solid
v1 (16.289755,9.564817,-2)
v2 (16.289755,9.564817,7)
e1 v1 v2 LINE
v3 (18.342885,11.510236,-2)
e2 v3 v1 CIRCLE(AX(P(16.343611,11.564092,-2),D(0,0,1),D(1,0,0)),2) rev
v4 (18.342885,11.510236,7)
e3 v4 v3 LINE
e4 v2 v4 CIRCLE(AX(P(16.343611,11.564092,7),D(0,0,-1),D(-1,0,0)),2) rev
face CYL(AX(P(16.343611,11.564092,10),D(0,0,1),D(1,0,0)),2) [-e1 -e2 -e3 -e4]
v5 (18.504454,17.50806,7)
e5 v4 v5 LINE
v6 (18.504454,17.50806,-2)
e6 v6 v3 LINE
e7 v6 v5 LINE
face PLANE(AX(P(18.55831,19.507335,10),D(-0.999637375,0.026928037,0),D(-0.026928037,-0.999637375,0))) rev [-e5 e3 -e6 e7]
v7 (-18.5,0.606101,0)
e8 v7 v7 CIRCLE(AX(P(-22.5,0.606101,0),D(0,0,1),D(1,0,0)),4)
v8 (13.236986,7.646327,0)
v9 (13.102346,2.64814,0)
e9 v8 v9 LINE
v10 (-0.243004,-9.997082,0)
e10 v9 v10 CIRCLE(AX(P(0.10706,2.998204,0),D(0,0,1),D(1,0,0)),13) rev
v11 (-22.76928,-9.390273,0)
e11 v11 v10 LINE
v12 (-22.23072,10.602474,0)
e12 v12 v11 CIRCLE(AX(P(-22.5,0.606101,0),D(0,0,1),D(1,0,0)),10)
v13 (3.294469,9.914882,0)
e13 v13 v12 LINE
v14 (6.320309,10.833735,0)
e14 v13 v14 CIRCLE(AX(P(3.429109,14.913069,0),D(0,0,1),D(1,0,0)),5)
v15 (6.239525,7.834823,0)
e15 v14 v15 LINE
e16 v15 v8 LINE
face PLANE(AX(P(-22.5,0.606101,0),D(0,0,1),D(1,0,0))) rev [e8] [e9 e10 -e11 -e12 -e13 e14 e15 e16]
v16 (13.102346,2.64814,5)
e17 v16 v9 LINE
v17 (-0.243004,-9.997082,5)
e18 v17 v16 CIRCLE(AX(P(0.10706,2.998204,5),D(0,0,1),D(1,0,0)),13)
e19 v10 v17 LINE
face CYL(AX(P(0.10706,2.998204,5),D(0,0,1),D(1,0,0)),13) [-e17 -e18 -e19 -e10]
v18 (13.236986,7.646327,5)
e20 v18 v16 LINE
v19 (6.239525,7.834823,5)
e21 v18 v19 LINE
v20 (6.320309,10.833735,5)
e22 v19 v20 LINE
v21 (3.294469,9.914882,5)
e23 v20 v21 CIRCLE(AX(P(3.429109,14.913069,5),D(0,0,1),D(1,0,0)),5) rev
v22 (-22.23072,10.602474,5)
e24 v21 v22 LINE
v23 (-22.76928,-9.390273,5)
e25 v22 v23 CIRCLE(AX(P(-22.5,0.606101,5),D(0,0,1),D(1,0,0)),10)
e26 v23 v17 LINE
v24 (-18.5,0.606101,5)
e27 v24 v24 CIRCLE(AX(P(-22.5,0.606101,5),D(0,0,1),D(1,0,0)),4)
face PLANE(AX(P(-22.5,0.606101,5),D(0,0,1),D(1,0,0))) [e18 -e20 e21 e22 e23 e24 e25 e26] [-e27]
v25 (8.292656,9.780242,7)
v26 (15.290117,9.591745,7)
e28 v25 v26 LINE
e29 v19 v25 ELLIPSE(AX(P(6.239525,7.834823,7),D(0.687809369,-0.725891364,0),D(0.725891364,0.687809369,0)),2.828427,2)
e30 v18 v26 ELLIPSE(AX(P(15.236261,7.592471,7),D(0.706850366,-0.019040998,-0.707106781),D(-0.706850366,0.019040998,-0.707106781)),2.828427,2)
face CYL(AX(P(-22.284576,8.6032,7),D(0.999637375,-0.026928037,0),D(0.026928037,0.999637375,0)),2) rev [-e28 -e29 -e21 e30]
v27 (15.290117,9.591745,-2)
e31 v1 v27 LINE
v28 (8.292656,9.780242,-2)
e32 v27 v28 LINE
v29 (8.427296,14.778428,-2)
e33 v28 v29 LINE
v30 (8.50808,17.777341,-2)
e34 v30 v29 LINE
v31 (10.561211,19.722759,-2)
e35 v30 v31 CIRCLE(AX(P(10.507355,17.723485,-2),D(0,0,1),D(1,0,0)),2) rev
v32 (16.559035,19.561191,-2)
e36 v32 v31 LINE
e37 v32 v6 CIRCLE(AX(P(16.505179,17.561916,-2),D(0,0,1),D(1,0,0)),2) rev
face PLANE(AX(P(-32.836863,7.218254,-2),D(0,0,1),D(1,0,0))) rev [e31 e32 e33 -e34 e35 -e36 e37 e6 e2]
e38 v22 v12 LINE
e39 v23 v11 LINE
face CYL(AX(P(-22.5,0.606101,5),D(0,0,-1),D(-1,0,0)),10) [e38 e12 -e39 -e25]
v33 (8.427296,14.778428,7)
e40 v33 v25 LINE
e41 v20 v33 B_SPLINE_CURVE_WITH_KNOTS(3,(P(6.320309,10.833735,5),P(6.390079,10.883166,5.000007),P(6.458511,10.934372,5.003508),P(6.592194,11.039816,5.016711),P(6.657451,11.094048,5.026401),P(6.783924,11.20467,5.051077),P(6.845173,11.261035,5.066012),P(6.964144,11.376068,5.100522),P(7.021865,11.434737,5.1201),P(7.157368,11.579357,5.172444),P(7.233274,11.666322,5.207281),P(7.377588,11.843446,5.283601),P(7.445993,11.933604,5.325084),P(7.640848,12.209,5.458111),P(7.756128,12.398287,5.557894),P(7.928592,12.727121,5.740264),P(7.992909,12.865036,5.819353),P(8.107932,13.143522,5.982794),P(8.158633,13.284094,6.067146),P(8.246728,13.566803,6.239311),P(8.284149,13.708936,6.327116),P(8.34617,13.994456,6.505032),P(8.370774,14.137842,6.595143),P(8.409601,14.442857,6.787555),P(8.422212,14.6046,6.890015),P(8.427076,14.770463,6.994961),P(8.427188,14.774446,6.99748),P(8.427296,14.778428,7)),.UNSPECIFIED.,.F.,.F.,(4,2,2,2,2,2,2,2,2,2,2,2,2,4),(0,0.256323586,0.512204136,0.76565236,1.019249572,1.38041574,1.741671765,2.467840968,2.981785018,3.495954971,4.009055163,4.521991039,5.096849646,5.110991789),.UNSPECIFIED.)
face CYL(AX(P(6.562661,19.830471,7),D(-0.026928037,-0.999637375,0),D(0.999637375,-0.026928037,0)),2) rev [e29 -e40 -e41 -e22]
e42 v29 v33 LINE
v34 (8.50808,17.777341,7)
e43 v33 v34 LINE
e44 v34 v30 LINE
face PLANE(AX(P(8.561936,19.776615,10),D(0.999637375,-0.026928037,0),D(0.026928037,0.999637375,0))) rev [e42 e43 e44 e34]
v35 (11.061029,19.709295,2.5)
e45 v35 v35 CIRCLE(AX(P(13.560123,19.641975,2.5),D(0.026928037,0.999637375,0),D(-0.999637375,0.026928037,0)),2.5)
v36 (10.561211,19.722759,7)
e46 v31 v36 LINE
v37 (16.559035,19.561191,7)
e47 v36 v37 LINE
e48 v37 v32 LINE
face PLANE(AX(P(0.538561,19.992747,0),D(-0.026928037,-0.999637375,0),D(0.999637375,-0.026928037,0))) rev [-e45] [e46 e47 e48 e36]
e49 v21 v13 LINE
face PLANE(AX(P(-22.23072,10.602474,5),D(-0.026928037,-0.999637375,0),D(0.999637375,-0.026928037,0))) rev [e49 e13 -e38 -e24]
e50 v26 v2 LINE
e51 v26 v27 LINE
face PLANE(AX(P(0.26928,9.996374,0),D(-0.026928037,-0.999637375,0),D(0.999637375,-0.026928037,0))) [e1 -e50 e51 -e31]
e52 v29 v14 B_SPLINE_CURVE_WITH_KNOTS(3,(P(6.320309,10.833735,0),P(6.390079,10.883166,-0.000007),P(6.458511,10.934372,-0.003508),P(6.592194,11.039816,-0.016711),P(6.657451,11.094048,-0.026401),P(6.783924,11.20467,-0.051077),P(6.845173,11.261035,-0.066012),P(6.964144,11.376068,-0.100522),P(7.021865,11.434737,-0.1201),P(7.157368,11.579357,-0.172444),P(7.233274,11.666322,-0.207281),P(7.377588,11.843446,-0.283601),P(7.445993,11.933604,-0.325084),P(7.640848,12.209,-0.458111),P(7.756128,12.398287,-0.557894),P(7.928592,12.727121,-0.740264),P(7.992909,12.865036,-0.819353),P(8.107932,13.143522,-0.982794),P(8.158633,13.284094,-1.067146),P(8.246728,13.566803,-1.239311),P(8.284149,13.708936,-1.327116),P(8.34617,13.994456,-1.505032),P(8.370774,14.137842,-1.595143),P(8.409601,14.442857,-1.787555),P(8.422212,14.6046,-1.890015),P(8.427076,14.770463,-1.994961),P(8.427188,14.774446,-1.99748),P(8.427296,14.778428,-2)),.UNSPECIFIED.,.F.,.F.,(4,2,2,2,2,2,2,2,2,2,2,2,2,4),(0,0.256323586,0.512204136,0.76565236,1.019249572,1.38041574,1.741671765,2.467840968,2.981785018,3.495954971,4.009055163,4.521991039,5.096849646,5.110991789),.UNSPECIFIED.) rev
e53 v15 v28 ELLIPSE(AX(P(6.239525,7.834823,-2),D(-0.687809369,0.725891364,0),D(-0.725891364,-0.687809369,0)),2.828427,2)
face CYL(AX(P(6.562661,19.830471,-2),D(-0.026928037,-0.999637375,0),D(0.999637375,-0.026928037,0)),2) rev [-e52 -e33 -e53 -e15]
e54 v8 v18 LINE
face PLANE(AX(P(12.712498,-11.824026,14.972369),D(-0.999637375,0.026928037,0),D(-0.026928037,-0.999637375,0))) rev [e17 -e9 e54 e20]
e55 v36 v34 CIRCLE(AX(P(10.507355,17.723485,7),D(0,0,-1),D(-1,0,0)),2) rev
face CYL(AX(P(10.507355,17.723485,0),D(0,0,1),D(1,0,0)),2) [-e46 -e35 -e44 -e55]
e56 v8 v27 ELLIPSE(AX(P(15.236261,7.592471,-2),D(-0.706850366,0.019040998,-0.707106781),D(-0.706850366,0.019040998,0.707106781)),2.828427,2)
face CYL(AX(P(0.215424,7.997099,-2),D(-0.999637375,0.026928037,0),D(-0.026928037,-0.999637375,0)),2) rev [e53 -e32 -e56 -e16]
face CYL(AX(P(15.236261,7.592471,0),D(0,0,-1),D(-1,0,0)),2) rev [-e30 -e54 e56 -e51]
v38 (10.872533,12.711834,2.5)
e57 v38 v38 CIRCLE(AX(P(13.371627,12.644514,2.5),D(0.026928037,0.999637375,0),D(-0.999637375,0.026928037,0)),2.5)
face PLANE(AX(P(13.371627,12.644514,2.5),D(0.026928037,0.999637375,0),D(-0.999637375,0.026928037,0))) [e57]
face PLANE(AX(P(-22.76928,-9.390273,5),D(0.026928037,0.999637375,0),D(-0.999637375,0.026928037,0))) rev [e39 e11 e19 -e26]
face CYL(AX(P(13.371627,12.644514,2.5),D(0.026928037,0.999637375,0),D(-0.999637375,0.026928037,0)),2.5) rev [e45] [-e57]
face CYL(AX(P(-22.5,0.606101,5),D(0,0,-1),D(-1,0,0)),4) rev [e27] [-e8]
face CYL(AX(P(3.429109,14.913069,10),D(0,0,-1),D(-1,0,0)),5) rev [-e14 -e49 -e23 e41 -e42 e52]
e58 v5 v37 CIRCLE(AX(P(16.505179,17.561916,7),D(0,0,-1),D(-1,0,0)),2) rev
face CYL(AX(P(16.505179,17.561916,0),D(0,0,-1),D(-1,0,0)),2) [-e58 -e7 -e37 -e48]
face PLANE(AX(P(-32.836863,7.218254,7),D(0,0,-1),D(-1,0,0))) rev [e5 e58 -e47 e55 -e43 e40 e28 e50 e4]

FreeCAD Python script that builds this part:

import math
import FreeCAD as App
import Part
import Sketcher
from FreeCAD import Vector


def edges_at(feature, points):
    """Names of the edges that pass closest to the given points."""
    edges = feature.Shape.Edges
    near = lambda p: min(range(len(edges)), key=lambda i: edges[i].distToShape(Part.Vertex(*p))[0])
    return sorted({f"Edge{near(p) + 1}" for p in points})


def add_polygon(sketch, points):
    """Adds a closed chain of lines whose ends are joined by coincident constraints."""
    first, n = sketch.GeometryCount, len(points)
    for a, b in zip(points, points[1:] + points[:1]):
        sketch.addGeometry(Part.LineSegment(App.Vector(*a, 0), App.Vector(*b, 0)), False)
    for i in range(n):
        sketch.addConstraint(Sketcher.Constraint("Coincident", first + i, 2, first + (i + 1) % n, 1))

doc = App.newDocument("Part")
body = doc.addObject("PartDesign::Body", "Body")

# Sketch on XY plane
sketch1 = body.newObject("Sketcher::SketchObject", "Sketch")
sketch1.AttachmentSupport = (doc.getObject("XY_Plane"), [""])
sketch1.MapMode = "FlatFace"
sketch1.addGeometry([
    Part.LineSegment(Vector(22.8, 9.4, 0), Vector(-22.2, 10.6, 0)),  # 0
    Part.ArcOfCircle(Part.Circle(Vector(-22.5, 0.6, 0), Vector(0, 0, 1), 10), math.radians(88), math.radians(268)),  # 1
    Part.LineSegment(Vector(-22.8, -9.4, 0), Vector(22.2, -10.6, 0)),  # 2
    Part.ArcOfCircle(Part.Circle(Vector(22.5, -0.6, 0), Vector(0, 0, 1), 10), math.radians(-92), math.radians(88)),  # 3
    Part.Circle(Vector(22.5, -0.6, 0), Vector(0, 0, 1), 4),  # 4
    Part.Circle(Vector(-22.5, 0.6, 0), Vector(0, 0, 1), 4),  # 5
], False)
sketch1.addConstraint([
    Sketcher.Constraint("Tangent", 0, 2, 1, 1),
    Sketcher.Constraint("Tangent", 1, 2, 2, 1),
    Sketcher.Constraint("Tangent", 2, 2, 3, 1),
    Sketcher.Constraint("Tangent", 3, 2, 0, 1),
    Sketcher.Constraint("Coincident", 4, 3, 3, 3),
    Sketcher.Constraint("Coincident", 5, 3, 1, 3),
    Sketcher.Constraint("Equal", 1, 3),
    Sketcher.Constraint("Equal", 4, 5),
    Sketcher.Constraint("Symmetric", 1, 3, 3, 3, -1, 1),
    Sketcher.Constraint("Diameter", 4, 8.0),
    Sketcher.Constraint("Radius", 1, 10.0),
    Sketcher.Constraint("DistanceX", 1, 3, 3, 3, 45.0),
    Sketcher.Constraint("DistanceY", -1, 1, 1, 3, 0.606101),
])
pad1 = body.newObject("PartDesign::Pad", "Pad")
pad1.Profile = sketch1
pad1.Length = 5

# Sketch on an angled plane
sketch2 = body.newObject("Sketcher::SketchObject", "Sketch001")
sketch2.Placement = App.Placement(Vector(0.26928, 9.996374, 0), App.Rotation(Vector(0.999637375, -0.026928037, 0), Vector(0, 0, -1.000000001), Vector(0.026928037, 0.999637375, 0), "ZXY"))
add_polygon(sketch2, [(13, 16), (13, -15), (43, -15), (43, 16)])  # lines 0-3
sketch2.addConstraint([
    Sketcher.Constraint("Vertical", 0),
    Sketcher.Constraint("Horizontal", 1),
    Sketcher.Constraint("Vertical", 2),
    Sketcher.Constraint("Horizontal", 3),
    Sketcher.Constraint("DistanceX", 1, 1, 1, 2, 29.745772),
    Sketcher.Constraint("DistanceY", 0, 2, 0, 1, 31.069071),
    Sketcher.Constraint("DistanceY", 0, 2, -1, 1, 14.972369),
    Sketcher.Constraint("DistanceX", -1, 1, 0, 2, 13.026286),
])
pocket1 = body.newObject("PartDesign::Pocket", "Pocket")
pocket1.Profile = sketch2
pocket1.Type = "ThroughAll"

# Sketch on an angled plane
sketch3 = body.newObject("Sketcher::SketchObject", "Sketch002")
sketch3.Placement = App.Placement(Vector(0.26928, 9.996374, 0), App.Rotation(Vector(0.999637375, -0.026928037, 0), Vector(0, 0, -1.000000001), Vector(0.026928037, 0.999637375, 0), "ZXY"))
add_polygon(sketch3, [(8, 5), (8, -10), (18, -10), (18, 5)])  # lines 0-3
sketch3.addConstraint([
    Sketcher.Constraint("Vertical", 0),
    Sketcher.Constraint("Horizontal", 1),
    Sketcher.Constraint("Vertical", 2),
    Sketcher.Constraint("Horizontal", 3),
    Sketcher.Constraint("DistanceX", 1, 1, 1, 2, 10.0),
    Sketcher.Constraint("DistanceY", 0, 2, 0, 1, 15.0),
    Sketcher.Constraint("DistanceY", 0, 2, -1, 1, 10.0),
    Sketcher.Constraint("DistanceX", -1, 1, 0, 2, 8.026286),
])
pad2 = body.newObject("PartDesign::Pad", "Pad001")
pad2.Profile = sketch3
pad2.Length = 10
doc.recompute()

fillet = body.newObject("PartDesign::Fillet", "Fillet")
fillet.Base = (pad2, edges_at(pad2, [(12.752, -10.347, 2.5)]))
fillet.Radius = 13
doc.recompute()

fillet2 = body.newObject("PartDesign::Fillet", "Fillet001")
fillet2.Base = (fillet, edges_at(fillet, [(8.293, 9.78, 2.5)]))
fillet2.Radius = 5
doc.recompute()

fillet3 = body.newObject("PartDesign::Fillet", "Fillet002")
fillet3.Base = (fillet2, edges_at(fillet2, [
    (10.792, 9.713, 0),
    (10.792, 9.713, 5),
    (13.291, 9.646, 2.5),
    (8.36, 12.279, 0),
    (8.36, 12.279, 5),
]))
fillet3.Radius = 2
doc.recompute()

fillet4 = body.newObject("PartDesign::Fillet", "Fillet003")
fillet4.Base = (fillet3, edges_at(fillet3, [
    (8.427, 14.778, -5),
    (8.427, 14.778, 10),
    (18.289, 9.511, 2.5),
    (18.424, 14.509, 10),
    (18.424, 14.509, -5),
    (8.562, 19.777, 2.5),
    (13.56, 19.642, 10),
    (18.558, 19.507, 2.5),
    (13.56, 19.642, -5),
]))
fillet4.Radius = 2

# Sketch on an angled plane
sketch4 = body.newObject("Sketcher::SketchObject", "Sketch003")
sketch4.Placement = App.Placement(Vector(0.538561, 19.992747, 0), App.Rotation(Vector(0.999637375, -0.026928037, 0), Vector(0, 0, -1.000000001), Vector(0.026928037, 0.999637375, 0), "ZXY"))
sketch4.addGeometry(Part.Circle(Vector(13, -2.5, 0), Vector(0, 0, 1), 2.5), False)
sketch4.addConstraint([
    Sketcher.Constraint("Diameter", 0, 5.0),
    Sketcher.Constraint("DistanceY", 0, 3, -1, 1, 2.5),
    Sketcher.Constraint("DistanceX", -1, 1, 0, 3, 13.026286),
])
pocket2 = body.newObject("PartDesign::Pocket", "Pocket001")
pocket2.Profile = sketch4
pocket2.Length = 7

# Sketch on an angled plane
sketch5 = body.newObject("Sketcher::SketchObject", "Sketch004")
sketch5.Placement = App.Placement(Vector(18.019749, -0.485412, 0), App.Rotation(Vector(0, 0, -1), Vector(0.026928037, 0.999637375, 0), Vector(0.999637375, -0.026928037, 0), "ZXY"))
add_polygon(sketch5, [(2, 23), (2, 6), (7, 6), (7, 23)])  # lines 0-3
add_polygon(sketch5, [(-12, 23), (-12, 6), (-7, 6), (-7, 23)])  # lines 4-7
sketch5.addConstraint([
    Sketcher.Constraint("Vertical", 0),
    Sketcher.Constraint("Horizontal", 1),
    Sketcher.Constraint("Vertical", 2),
    Sketcher.Constraint("Horizontal", 3),
    Sketcher.Constraint("Vertical", 4),
    Sketcher.Constraint("Horizontal", 5),
    Sketcher.Constraint("Vertical", 6),
    Sketcher.Constraint("Horizontal", 7),
    Sketcher.Constraint("Horizontal", 1, 2, 4, 2),
    Sketcher.Constraint("Horizontal", 3, 2, 6, 2),
    Sketcher.Constraint("Equal", 3, 5),
    Sketcher.Constraint("DistanceX", -1, 1, 0, 2, 2.0),
    Sketcher.Constraint("DistanceX", 5, 2, -1, 1, 7.0),
    Sketcher.Constraint("DistanceY", 0, 2, 0, 1, 16.421651),
    Sketcher.Constraint("DistanceX", 1, 1, 1, 2, 5.480045),
    Sketcher.Constraint("DistanceY", -1, 1, 0, 2, 6.331404),
])
pocket3 = body.newObject("PartDesign::Pocket", "Pocket002")
pocket3.Profile = sketch5
pocket3.Type = "ThroughAll"

doc.recompute()
